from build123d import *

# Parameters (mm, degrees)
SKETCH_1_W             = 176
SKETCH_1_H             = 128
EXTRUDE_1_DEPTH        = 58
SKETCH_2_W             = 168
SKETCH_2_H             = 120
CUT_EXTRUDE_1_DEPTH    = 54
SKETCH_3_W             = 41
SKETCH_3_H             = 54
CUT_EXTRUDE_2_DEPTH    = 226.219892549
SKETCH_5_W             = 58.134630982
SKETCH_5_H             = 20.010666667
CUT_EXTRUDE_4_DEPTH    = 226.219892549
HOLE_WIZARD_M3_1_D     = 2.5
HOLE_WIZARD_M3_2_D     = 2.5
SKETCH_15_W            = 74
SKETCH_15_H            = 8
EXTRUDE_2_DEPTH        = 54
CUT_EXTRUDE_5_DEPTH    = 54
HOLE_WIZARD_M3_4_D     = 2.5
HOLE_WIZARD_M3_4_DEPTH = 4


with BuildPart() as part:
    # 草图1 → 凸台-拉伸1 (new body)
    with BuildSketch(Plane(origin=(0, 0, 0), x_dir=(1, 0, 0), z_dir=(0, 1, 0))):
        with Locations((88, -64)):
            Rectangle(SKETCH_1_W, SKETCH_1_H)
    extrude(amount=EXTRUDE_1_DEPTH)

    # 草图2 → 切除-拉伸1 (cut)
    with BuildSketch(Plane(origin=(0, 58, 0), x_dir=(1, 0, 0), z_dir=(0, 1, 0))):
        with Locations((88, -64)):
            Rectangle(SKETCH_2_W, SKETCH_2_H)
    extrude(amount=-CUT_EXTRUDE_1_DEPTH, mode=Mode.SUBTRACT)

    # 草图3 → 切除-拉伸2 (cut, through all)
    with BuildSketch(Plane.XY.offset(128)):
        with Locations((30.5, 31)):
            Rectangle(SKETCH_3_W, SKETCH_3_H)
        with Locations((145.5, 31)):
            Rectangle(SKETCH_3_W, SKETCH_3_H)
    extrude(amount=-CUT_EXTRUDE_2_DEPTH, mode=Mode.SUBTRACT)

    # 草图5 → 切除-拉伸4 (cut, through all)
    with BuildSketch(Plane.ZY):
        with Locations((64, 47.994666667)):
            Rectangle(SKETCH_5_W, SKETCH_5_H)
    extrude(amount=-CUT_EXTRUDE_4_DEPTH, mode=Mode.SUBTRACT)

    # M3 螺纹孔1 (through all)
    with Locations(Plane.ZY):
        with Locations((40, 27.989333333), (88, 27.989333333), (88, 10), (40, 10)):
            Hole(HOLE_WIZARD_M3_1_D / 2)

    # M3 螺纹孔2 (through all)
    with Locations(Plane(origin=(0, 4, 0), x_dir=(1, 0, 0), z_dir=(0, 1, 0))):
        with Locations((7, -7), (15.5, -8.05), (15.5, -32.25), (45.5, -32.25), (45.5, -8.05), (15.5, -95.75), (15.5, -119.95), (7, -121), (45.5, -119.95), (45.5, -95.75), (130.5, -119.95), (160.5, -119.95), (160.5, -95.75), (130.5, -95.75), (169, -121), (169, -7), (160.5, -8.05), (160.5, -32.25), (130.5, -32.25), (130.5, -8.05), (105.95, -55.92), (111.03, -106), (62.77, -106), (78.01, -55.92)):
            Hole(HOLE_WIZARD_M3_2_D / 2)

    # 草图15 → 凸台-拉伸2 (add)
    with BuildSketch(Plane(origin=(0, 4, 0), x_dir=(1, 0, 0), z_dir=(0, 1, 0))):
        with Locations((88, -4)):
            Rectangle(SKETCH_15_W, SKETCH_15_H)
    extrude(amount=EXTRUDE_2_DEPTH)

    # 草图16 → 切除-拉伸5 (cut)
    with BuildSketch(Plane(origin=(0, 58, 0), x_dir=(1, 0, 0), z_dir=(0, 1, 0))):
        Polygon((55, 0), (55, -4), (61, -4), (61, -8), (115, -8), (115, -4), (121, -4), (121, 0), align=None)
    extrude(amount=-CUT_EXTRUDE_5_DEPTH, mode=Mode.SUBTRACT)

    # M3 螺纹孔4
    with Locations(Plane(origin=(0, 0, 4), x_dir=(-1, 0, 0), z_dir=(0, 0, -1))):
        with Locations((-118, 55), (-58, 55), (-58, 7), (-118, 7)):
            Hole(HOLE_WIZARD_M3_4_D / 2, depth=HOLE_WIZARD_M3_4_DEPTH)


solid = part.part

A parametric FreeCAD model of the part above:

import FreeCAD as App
import Part
import Sketcher
from FreeCAD import Vector

doc = App.newDocument("Part")
params = doc.addObject("Spreadsheet::Sheet", "Params")
for row, (alias, value) in enumerate([
    ("sketch1_width", "176 mm"),
    ("sketch1_height", "128 mm"),
    ("pad1_length", "58 mm"),
    ("sketch2_width", "168 mm"),
    ("sketch2_height", "120 mm"),
    ("pocket1_length", "54 mm"),
    ("sketch3_width", "41 mm"),
    ("sketch3_height", "54 mm"),
    ("sketch5_diameter", "2.5 mm"),
    ("hole_diameter", "2.5 mm"),
    ("sketch6_diameter", "2.5 mm"),
    ("hole2_diameter", "2.5 mm"),
    ("sketch7_width", "74 mm"),
    ("sketch7_height", "8 mm"),
    ("pad2_length", "54 mm"),
    ("sketch8_width", "6 mm"),
    ("sketch8_width2", "54 mm"),
    ("sketch8_height", "4 mm"),
    ("pocket4_length", "54 mm"),
    ("sketch9_diameter", "2.5 mm"),
    ("hole3_diameter", "2.5 mm"),
    ("hole3_depth", "4 mm"),
], start=1):
    params.set(f"A{row}", alias)
    params.set(f"B{row}", "=" + value)
    params.setAlias(f"B{row}", alias)

body = doc.addObject("PartDesign::Body", "Body")

sketch1 = body.newObject("Sketcher::SketchObject", "Sketch")
sketch1.AttachmentSupport = (doc.getObject("XZ_Plane"), [""])
sketch1.MapMode = "FlatFace"
sketch1.addGeometry([
    Part.LineSegment(Vector(0, 0, 0), Vector(0, 128, 0)),
    Part.LineSegment(Vector(0, 128, 0), Vector(176, 128, 0)),
    Part.LineSegment(Vector(176, 128, 0), Vector(176, 0, 0)),
    Part.LineSegment(Vector(176, 0, 0), Vector(0, 0, 0)),
], False)
sketch1.addConstraint([
    Sketcher.Constraint("Coincident", 0, 2, 1, 1),
    Sketcher.Constraint("Coincident", 1, 2, 2, 1),
    Sketcher.Constraint("Coincident", 2, 2, 3, 1),
    Sketcher.Constraint("Coincident", 3, 2, 0, 1),
    Sketcher.Constraint("Vertical", 0),
    Sketcher.Constraint("Horizontal", 1),
    Sketcher.Constraint("Vertical", 2),
    Sketcher.Constraint("Horizontal", 3),
    Sketcher.Constraint("Coincident", 3, 2, -1, 1),
    Sketcher.Constraint("DistanceX", 1, 1, 1, 2, 176.0),
    Sketcher.Constraint("DistanceY", 0, 1, 0, 2, 128.0),
])
sketch1.setExpression("Constraints[9]", "Params.sketch1_width")
sketch1.setExpression("Constraints[10]", "Params.sketch1_height")
pad1 = body.newObject("PartDesign::Pad", "Pad")
pad1.Profile = sketch1
pad1.setExpression("Length", "Params.pad1_length")
pad1.Reversed = True

sketch2 = body.newObject("Sketcher::SketchObject", "Sketch001")
sketch2.AttachmentSupport = (doc.getObject("XZ_Plane"), [""])
sketch2.MapMode = "FlatFace"
sketch2.AttachmentOffset = App.Placement(Vector(0, 0, -58), App.Rotation())
sketch2.addGeometry([
    Part.LineSegment(Vector(4, 4, 0), Vector(4, 124, 0)),
    Part.LineSegment(Vector(4, 124, 0), Vector(172, 124, 0)),
    Part.LineSegment(Vector(172, 124, 0), Vector(172, 4, 0)),
    Part.LineSegment(Vector(172, 4, 0), Vector(4, 4, 0)),
], False)
sketch2.addConstraint([
    Sketcher.Constraint("Coincident", 0, 2, 1, 1),
    Sketcher.Constraint("Coincident", 1, 2, 2, 1),
    Sketcher.Constraint("Coincident", 2, 2, 3, 1),
    Sketcher.Constraint("Coincident", 3, 2, 0, 1),
    Sketcher.Constraint("Vertical", 0),
    Sketcher.Constraint("Horizontal", 1),
    Sketcher.Constraint("Vertical", 2),
    Sketcher.Constraint("Horizontal", 3),
    Sketcher.Constraint("DistanceX", 1, 1, 1, 2, 168.0),
    Sketcher.Constraint("DistanceY", 0, 1, 0, 2, 120.0),
    Sketcher.Constraint("DistanceX", -1, 1, 0, 2, 4.0),
    Sketcher.Constraint("DistanceY", -1, 1, 0, 2, 124.0),
])
sketch2.setExpression("Constraints[8]", "Params.sketch2_width")
sketch2.setExpression("Constraints[9]", "Params.sketch2_height")
pocket1 = body.newObject("PartDesign::Pocket", "Pocket")
pocket1.Profile = sketch2
pocket1.setExpression("Length", "Params.pocket1_length")
pocket1.Reversed = True

sketch3 = body.newObject("Sketcher::SketchObject", "Sketch002")
sketch3.AttachmentSupport = (doc.getObject("XY_Plane"), [""])
sketch3.MapMode = "FlatFace"
sketch3.AttachmentOffset = App.Placement(Vector(0, 0, 128), App.Rotation())
sketch3.addGeometry([
    Part.LineSegment(Vector(10, 58, 0), Vector(10, 4, 0)),
    Part.LineSegment(Vector(10, 4, 0), Vector(51, 4, 0)),
    Part.LineSegment(Vector(51, 4, 0), Vector(51, 58, 0)),
    Part.LineSegment(Vector(51, 58, 0), Vector(10, 58, 0)),
    Part.LineSegment(Vector(125, 58, 0), Vector(125, 4, 0)),
    Part.LineSegment(Vector(125, 4, 0), Vector(166, 4, 0)),
    Part.LineSegment(Vector(166, 4, 0), Vector(166, 58, 0)),
    Part.LineSegment(Vector(166, 58, 0), Vector(125, 58, 0)),
], False)
sketch3.addConstraint([
    Sketcher.Constraint("Coincident", 0, 2, 1, 1),
    Sketcher.Constraint("Coincident", 1, 2, 2, 1),
    Sketcher.Constraint("Coincident", 2, 2, 3, 1),
    Sketcher.Constraint("Coincident", 3, 2, 0, 1),
    Sketcher.Constraint("Coincident", 4, 2, 5, 1),
    Sketcher.Constraint("Coincident", 5, 2, 6, 1),
    Sketcher.Constraint("Coincident", 6, 2, 7, 1),
    Sketcher.Constraint("Coincident", 7, 2, 4, 1),
    Sketcher.Constraint("Vertical", 0),
    Sketcher.Constraint("Horizontal", 1),
    Sketcher.Constraint("Vertical", 2),
    Sketcher.Constraint("Horizontal", 3),
    Sketcher.Constraint("Vertical", 4),
    Sketcher.Constraint("Horizontal", 5),
    Sketcher.Constraint("Vertical", 6),
    Sketcher.Constraint("Horizontal", 7),
    Sketcher.Constraint("Horizontal", 1, 2, 4, 2),
    Sketcher.Constraint("Horizontal", 3, 2, 6, 2),
    Sketcher.Constraint("Equal", 3, 5),
    Sketcher.Constraint("DistanceX", 1, 1, 1, 2, 41.0),
    Sketcher.Constraint("DistanceY", 0, 2, 0, 1, 54.0),
    Sketcher.Constraint("DistanceX", -1, 1, 0, 2, 10.0),
    Sketcher.Constraint("DistanceY", -1, 1, 0, 2, 4.0),
    Sketcher.Constraint("DistanceX", -1, 1, 4, 2, 125.0),
])
sketch3.setExpression("Constraints[19]", "Params.sketch3_width")
sketch3.setExpression("Constraints[20]", "Params.sketch3_height")
pocket2 = body.newObject("PartDesign::Pocket", "Pocket001")
pocket2.Profile = sketch3
pocket2.Type = "ThroughAll"

sketch4 = body.newObject("Sketcher::SketchObject", "Sketch003")
sketch4.AttachmentSupport = (doc.getObject("YZ_Plane"), [""])
sketch4.MapMode = "FlatFace"
sketch4.addGeometry([
    Part.LineSegment(Vector(58, 35, 0), Vector(38, 35, 0)),
    Part.LineSegment(Vector(38, 35, 0), Vector(38, 93, 0)),
    Part.LineSegment(Vector(38, 93, 0), Vector(58, 93, 0)),
    Part.LineSegment(Vector(58, 93, 0), Vector(58, 35, 0)),
], False)
sketch4.addConstraint([
    Sketcher.Constraint("Coincident", 0, 2, 1, 1),
    Sketcher.Constraint("Coincident", 1, 2, 2, 1),
    Sketcher.Constraint("Coincident", 2, 2, 3, 1),
    Sketcher.Constraint("Coincident", 3, 2, 0, 1),
    Sketcher.Constraint("Horizontal", 0),
    Sketcher.Constraint("Vertical", 1),
    Sketcher.Constraint("Horizontal", 2),
    Sketcher.Constraint("Vertical", 3),
    Sketcher.Constraint("DistanceX", -1, 1, 2, 2, 58.0),
    Sketcher.Constraint("DistanceY", 1, 1, 1, 2, 58.134631),
    Sketcher.Constraint("DistanceX", 0, 2, 0, 1, 20.010667),
    Sketcher.Constraint("DistanceY", -1, 1, 0, 2, 34.932685),
])
pocket3 = body.newObject("PartDesign::Pocket", "Pocket002")
pocket3.Profile = sketch4
pocket3.Type = "ThroughAll"
pocket3.Reversed = True

sketch5 = body.newObject("Sketcher::SketchObject", "Sketch004")
sketch5.AttachmentSupport = (doc.getObject("YZ_Plane"), [""])
sketch5.MapMode = "FlatFace"
sketch5.addGeometry([
    Part.Circle(Vector(28, 40, 0), Vector(0, 0, 1), 1.2),
    Part.Circle(Vector(28, 88, 0), Vector(0, 0, 1), 1.2),
    Part.Circle(Vector(10, 88, 0), Vector(0, 0, 1), 1.2),
    Part.Circle(Vector(10, 40, 0), Vector(0, 0, 1), 1.2),
], False)
sketch5.addConstraint([
    Sketcher.Constraint("Equal", 0, 1),
    Sketcher.Constraint("Equal", 1, 2),
    Sketcher.Constraint("Equal", 2, 3),
    Sketcher.Constraint("Horizontal", 1, 3, 2, 3),
    Sketcher.Constraint("Horizontal", 0, 3, 3, 3),
    Sketcher.Constraint("Vertical", 0, 3, 1, 3),
    Sketcher.Constraint("Vertical", 2, 3, 3, 3),
    Sketcher.Constraint("Diameter", 0, 2.5),
    Sketcher.Constraint("DistanceY", -1, 1, 0, 3, 40.0),
    Sketcher.Constraint("DistanceY", -1, 1, 1, 3, 88.0),
    Sketcher.Constraint("DistanceX", -1, 1, 2, 3, 10.0),
    Sketcher.Constraint("DistanceX", -1, 1, 0, 3, 27.989333),
])
sketch5.setExpression("Constraints[7]", "Params.sketch5_diameter")
doc.recompute()
hole = body.newObject("PartDesign::Hole", "Hole")
hole.Profile = sketch5
hole.ThreadType = "None"
hole.setExpression("Diameter", "Params.hole_diameter")
hole.DepthType = "ThroughAll"
hole.Reversed = True

sketch6 = body.newObject("Sketcher::SketchObject", "Sketch005")
sketch6.AttachmentSupport = (doc.getObject("XZ_Plane"), [""])
sketch6.MapMode = "FlatFace"
sketch6.AttachmentOffset = App.Placement(Vector(0, 0, -4), App.Rotation())
sketch6.addGeometry([
    Part.Circle(Vector(7, 7, 0), Vector(0, 0, 1), 1.2),
    Part.Circle(Vector(15.5, 8.1, 0), Vector(0, 0, 1), 1.2),
    Part.Circle(Vector(15.5, 32.2, 0), Vector(0, 0, 1), 1.2),
    Part.Circle(Vector(45.5, 32.2, 0), Vector(0, 0, 1), 1.2),
    Part.Circle(Vector(45.5, 8.1, 0), Vector(0, 0, 1), 1.2),
    Part.Circle(Vector(15.5, 95.8, 0), Vector(0, 0, 1), 1.2),
    Part.Circle(Vector(15.5, 120, 0), Vector(0, 0, 1), 1.2),
    Part.Circle(Vector(7, 121, 0), Vector(0, 0, 1), 1.2),
    Part.Circle(Vector(45.5, 120, 0), Vector(0, 0, 1), 1.2),
    Part.Circle(Vector(45.5, 95.8, 0), Vector(0, 0, 1), 1.2),
    Part.Circle(Vector(130.5, 120, 0), Vector(0, 0, 1), 1.2),
    Part.Circle(Vector(160.5, 120, 0), Vector(0, 0, 1), 1.2),
    Part.Circle(Vector(160.5, 95.8, 0), Vector(0, 0, 1), 1.2),
    Part.Circle(Vector(130.5, 95.8, 0), Vector(0, 0, 1), 1.2),
    Part.Circle(Vector(169, 121, 0), Vector(0, 0, 1), 1.2),
    Part.Circle(Vector(169, 7, 0), Vector(0, 0, 1), 1.2),
    Part.Circle(Vector(160.5, 8.1, 0), Vector(0, 0, 1), 1.2),
    Part.Circle(Vector(160.5, 32.2, 0), Vector(0, 0, 1), 1.2),
    Part.Circle(Vector(130.5, 32.2, 0), Vector(0, 0, 1), 1.2),
    Part.Circle(Vector(130.5, 8.1, 0), Vector(0, 0, 1), 1.2),
    Part.Circle(Vector(106, 55.9, 0), Vector(0, 0, 1), 1.2),
    Part.Circle(Vector(111, 106, 0), Vector(0, 0, 1), 1.2),
    Part.Circle(Vector(62.8, 106, 0), Vector(0, 0, 1), 1.2),
    Part.Circle(Vector(78, 55.9, 0), Vector(0, 0, 1), 1.2),
], False)
sketch6.addConstraint([
    Sketcher.Constraint("Equal", 0, 1),
    Sketcher.Constraint("Equal", 1, 2),
    Sketcher.Constraint("Equal", 2, 3),
    Sketcher.Constraint("Equal", 3, 4),
    Sketcher.Constraint("Equal", 4, 5),
    Sketcher.Constraint("Equal", 5, 6),
    Sketcher.Constraint("Equal", 6, 7),
    Sketcher.Constraint("Equal", 7, 8),
    Sketcher.Constraint("Equal", 8, 9),
    Sketcher.Constraint("Equal", 9, 10),
    Sketcher.Constraint("Equal", 10, 11),
    Sketcher.Constraint("Equal", 11, 12),
    Sketcher.Constraint("Equal", 12, 13),
    Sketcher.Constraint("Equal", 13, 14),
    Sketcher.Constraint("Equal", 14, 15),
    Sketcher.Constraint("Equal", 15, 16),
    Sketcher.Constraint("Equal", 16, 17),
    Sketcher.Constraint("Equal", 17, 18),
    Sketcher.Constraint("Equal", 18, 19),
    Sketcher.Constraint("Equal", 19, 20),
    Sketcher.Constraint("Equal", 20, 21),
    Sketcher.Constraint("Equal", 21, 22),
    Sketcher.Constraint("Equal", 22, 23),
    Sketcher.Constraint("Horizontal", 2, 3, 3, 3),
    Sketcher.Constraint("Horizontal", 1, 3, 4, 3),
    Sketcher.Constraint("Horizontal", 6, 3, 8, 3),
    Sketcher.Constraint("Horizontal", 5, 3, 9, 3),
    Sketcher.Constraint("Horizontal", 8, 3, 10, 3),
    Sketcher.Constraint("Horizontal", 10, 3, 11, 3),
    Sketcher.Constraint("Horizontal", 9, 3, 12, 3),
    Sketcher.Constraint("Horizontal", 12, 3, 13, 3),
    Sketcher.Constraint("Horizontal", 7, 3, 14, 3),
    Sketcher.Constraint("Horizontal", 0, 3, 15, 3),
    Sketcher.Constraint("Horizontal", 4, 3, 16, 3),
    Sketcher.Constraint("Horizontal", 3, 3, 17, 3),
    Sketcher.Constraint("Horizontal", 17, 3, 18, 3),
    Sketcher.Constraint("Horizontal", 16, 3, 19, 3),
    Sketcher.Constraint("Horizontal", 21, 3, 22, 3),
    Sketcher.Constraint("Horizontal", 20, 3, 23, 3),
    Sketcher.Constraint("Vertical", 1, 3, 2, 3),
    Sketcher.Constraint("Vertical", 3, 3, 4, 3),
    Sketcher.Constraint("Vertical", 2, 3, 5, 3),
    Sketcher.Constraint("Vertical", 5, 3, 6, 3),
    Sketcher.Constraint("Vertical", 0, 3, 7, 3),
    Sketcher.Constraint("Vertical", 4, 3, 8, 3),
    Sketcher.Constraint("Vertical", 8, 3, 9, 3),
    Sketcher.Constraint("Vertical", 11, 3, 12, 3),
    Sketcher.Constraint("Vertical", 10, 3, 13, 3),
    Sketcher.Constraint("Vertical", 14, 3, 15, 3),
    Sketcher.Constraint("Vertical", 12, 3, 16, 3),
    Sketcher.Constraint("Vertical", 16, 3, 17, 3),
    Sketcher.Constraint("Vertical", 13, 3, 18, 3),
    Sketcher.Constraint("Vertical", 18, 3, 19, 3),
    Sketcher.Constraint("Diameter", 0, 2.5),
    Sketcher.Constraint("DistanceX", -1, 1, 0, 3, 7.0),
    Sketcher.Constraint("DistanceY", -1, 1, 0, 3, 7.0),
    Sketcher.Constraint("DistanceY", -1, 1, 7, 3, 121.0),
    Sketcher.Constraint("DistanceX", -1, 1, 14, 3, 169.0),
    Sketcher.Constraint("DistanceY", -1, 1, 21, 3, 106.0),
    Sketcher.Constraint("DistanceX", 2, 3, 3, 3, 30.0),
    Sketcher.Constraint("DistanceX", 8, 3, 10, 3, 85.0),
    Sketcher.Constraint("DistanceX", 10, 3, 11, 3, 30.0),
    Sketcher.Constraint("DistanceX", -1, 1, 1, 3, 15.5),
    Sketcher.Constraint("DistanceY", 1, 3, 2, 3, 24.2),
    Sketcher.Constraint("DistanceY", 2, 3, 5, 3, 63.5),
    Sketcher.Constraint("DistanceY", 5, 3, 6, 3, 24.2),
    Sketcher.Constraint("DistanceY", -1, 1, 1, 3, 8.05),
    Sketcher.Constraint("DistanceX", -1, 1, 20, 3, 105.95),
    Sketcher.Constraint("DistanceY", -1, 1, 20, 3, 55.92),
    Sketcher.Constraint("DistanceX", -1, 1, 21, 3, 111.03),
    Sketcher.Constraint("DistanceX", -1, 1, 22, 3, 62.77),
    Sketcher.Constraint("DistanceX", -1, 1, 23, 3, 78.01),
])
sketch6.setExpression("Constraints[53]", "Params.sketch6_diameter")
doc.recompute()
hole2 = body.newObject("PartDesign::Hole", "Hole001")
hole2.Profile = sketch6
hole2.ThreadType = "None"
hole2.setExpression("Diameter", "Params.hole2_diameter")
hole2.DepthType = "ThroughAll"
hole2.Reversed = True

sketch7 = body.newObject("Sketcher::SketchObject", "Sketch006")
sketch7.AttachmentSupport = (doc.getObject("XZ_Plane"), [""])
sketch7.MapMode = "FlatFace"
sketch7.AttachmentOffset = App.Placement(Vector(0, 0, -4), App.Rotation())
sketch7.addGeometry([
    Part.LineSegment(Vector(51, 0, 0), Vector(51, 8, 0)),
    Part.LineSegment(Vector(51, 8, 0), Vector(125, 8, 0)),
    Part.LineSegment(Vector(125, 8, 0), Vector(125, 0, 0)),
    Part.LineSegment(Vector(125, 0, 0), Vector(51, 0, 0)),
], False)
sketch7.addConstraint([
    Sketcher.Constraint("Coincident", 0, 2, 1, 1),
    Sketcher.Constraint("Coincident", 1, 2, 2, 1),
    Sketcher.Constraint("Coincident", 2, 2, 3, 1),
    Sketcher.Constraint("Coincident", 3, 2, 0, 1),
    Sketcher.Constraint("Vertical", 0),
    Sketcher.Constraint("Horizontal", 1),
    Sketcher.Constraint("Vertical", 2),
    Sketcher.Constraint("Horizontal", 3),
    Sketcher.Constraint("PointOnObject", 2, 2, -1),
    Sketcher.Constraint("DistanceX", 1, 1, 1, 2, 74.0),
    Sketcher.Constraint("DistanceY", 0, 1, 0, 2, 8.0),
    Sketcher.Constraint("DistanceX", -1, 1, 0, 2, 51.0),
])
sketch7.setExpression("Constraints[9]", "Params.sketch7_width")
sketch7.setExpression("Constraints[10]", "Params.sketch7_height")
pad2 = body.newObject("PartDesign::Pad", "Pad001")
pad2.Profile = sketch7
pad2.setExpression("Length", "Params.pad2_length")
pad2.Reversed = True

sketch8 = body.newObject("Sketcher::SketchObject", "Sketch007")
sketch8.AttachmentSupport = (doc.getObject("XZ_Plane"), [""])
sketch8.MapMode = "FlatFace"
sketch8.AttachmentOffset = App.Placement(Vector(0, 0, -58), App.Rotation())
sketch8.addGeometry([
    Part.LineSegment(Vector(55, 0, 0), Vector(55, 4, 0)),
    Part.LineSegment(Vector(55, 4, 0), Vector(61, 4, 0)),
    Part.LineSegment(Vector(61, 4, 0), Vector(61, 8, 0)),
    Part.LineSegment(Vector(61, 8, 0), Vector(115, 8, 0)),
    Part.LineSegment(Vector(115, 8, 0), Vector(115, 4, 0)),
    Part.LineSegment(Vector(115, 4, 0), Vector(121, 4, 0)),
    Part.LineSegment(Vector(121, 4, 0), Vector(121, 0, 0)),
    Part.LineSegment(Vector(121, 0, 0), Vector(55, 0, 0)),
], False)
sketch8.addConstraint([
    Sketcher.Constraint("Coincident", 0, 2, 1, 1),
    Sketcher.Constraint("Coincident", 1, 2, 2, 1),
    Sketcher.Constraint("Coincident", 2, 2, 3, 1),
    Sketcher.Constraint("Coincident", 3, 2, 4, 1),
    Sketcher.Constraint("Coincident", 4, 2, 5, 1),
    Sketcher.Constraint("Coincident", 5, 2, 6, 1),
    Sketcher.Constraint("Coincident", 6, 2, 7, 1),
    Sketcher.Constraint("Coincident", 7, 2, 0, 1),
    Sketcher.Constraint("Vertical", 0),
    Sketcher.Constraint("Horizontal", 1),
    Sketcher.Constraint("Vertical", 2),
    Sketcher.Constraint("Horizontal", 3),
    Sketcher.Constraint("Vertical", 4),
    Sketcher.Constraint("Horizontal", 5),
    Sketcher.Constraint("Vertical", 6),
    Sketcher.Constraint("Horizontal", 7),
    Sketcher.Constraint("PointOnObject", 6, 2, -1),
    Sketcher.Constraint("Horizontal", 1, 2, 4, 2),
    Sketcher.Constraint("Equal", 1, 5),
    Sketcher.Constraint("Equal", 0, 2),
    Sketcher.Constraint("DistanceX", 1, 1, 1, 2, 6.0),
    Sketcher.Constraint("DistanceX", 3, 1, 3, 2, 54.0),
    Sketcher.Constraint("DistanceY", 0, 1, 0, 2, 4.0),
    Sketcher.Constraint("DistanceX", -1, 1, 0, 2, 55.0),
])
sketch8.setExpression("Constraints[20]", "Params.sketch8_width")
sketch8.setExpression("Constraints[21]", "Params.sketch8_width2")
sketch8.setExpression("Constraints[22]", "Params.sketch8_height")
pocket4 = body.newObject("PartDesign::Pocket", "Pocket003")
pocket4.Profile = sketch8
pocket4.setExpression("Length", "Params.pocket4_length")
pocket4.Reversed = True

sketch9 = body.newObject("Sketcher::SketchObject", "Sketch008")
sketch9.AttachmentSupport = (doc.getObject("XY_Plane"), [""])
sketch9.MapMode = "FlatFace"
sketch9.AttachmentOffset = App.Placement(Vector(0, 0, 4), App.Rotation())
sketch9.addGeometry([
    Part.Circle(Vector(118, 55, 0), Vector(0, 0, 1), 1.2),
    Part.Circle(Vector(58, 55, 0), Vector(0, 0, 1), 1.2),
    Part.Circle(Vector(58, 7, 0), Vector(0, 0, 1), 1.2),
    Part.Circle(Vector(118, 7, 0), Vector(0, 0, 1), 1.2),
], False)
sketch9.addConstraint([
    Sketcher.Constraint("Equal", 0, 1),
    Sketcher.Constraint("Equal", 1, 2),
    Sketcher.Constraint("Equal", 2, 3),
    Sketcher.Constraint("Horizontal", 0, 3, 1, 3),
    Sketcher.Constraint("Horizontal", 2, 3, 3, 3),
    Sketcher.Constraint("Vertical", 1, 3, 2, 3),
    Sketcher.Constraint("Vertical", 0, 3, 3, 3),
    Sketcher.Constraint("Diameter", 0, 2.5),
    Sketcher.Constraint("DistanceX", -1, 1, 0, 3, 118.0),
    Sketcher.Constraint("DistanceY", -1, 1, 0, 3, 55.0),
    Sketcher.Constraint("DistanceX", -1, 1, 1, 3, 58.0),
    Sketcher.Constraint("DistanceY", -1, 1, 2, 3, 7.0),
])
sketch9.setExpression("Constraints[7]", "Params.sketch9_diameter")
doc.recompute()
hole3 = body.newObject("PartDesign::Hole", "Hole002")
hole3.Profile = sketch9
hole3.ThreadType = "None"
hole3.setExpression("Diameter", "Params.hole3_diameter")
hole3.DepthType = "Dimension"
hole3.setExpression("Depth", "Params.hole3_depth")
hole3.DrillPoint = "Flat"
hole3.Reversed = True

doc.recompute()
